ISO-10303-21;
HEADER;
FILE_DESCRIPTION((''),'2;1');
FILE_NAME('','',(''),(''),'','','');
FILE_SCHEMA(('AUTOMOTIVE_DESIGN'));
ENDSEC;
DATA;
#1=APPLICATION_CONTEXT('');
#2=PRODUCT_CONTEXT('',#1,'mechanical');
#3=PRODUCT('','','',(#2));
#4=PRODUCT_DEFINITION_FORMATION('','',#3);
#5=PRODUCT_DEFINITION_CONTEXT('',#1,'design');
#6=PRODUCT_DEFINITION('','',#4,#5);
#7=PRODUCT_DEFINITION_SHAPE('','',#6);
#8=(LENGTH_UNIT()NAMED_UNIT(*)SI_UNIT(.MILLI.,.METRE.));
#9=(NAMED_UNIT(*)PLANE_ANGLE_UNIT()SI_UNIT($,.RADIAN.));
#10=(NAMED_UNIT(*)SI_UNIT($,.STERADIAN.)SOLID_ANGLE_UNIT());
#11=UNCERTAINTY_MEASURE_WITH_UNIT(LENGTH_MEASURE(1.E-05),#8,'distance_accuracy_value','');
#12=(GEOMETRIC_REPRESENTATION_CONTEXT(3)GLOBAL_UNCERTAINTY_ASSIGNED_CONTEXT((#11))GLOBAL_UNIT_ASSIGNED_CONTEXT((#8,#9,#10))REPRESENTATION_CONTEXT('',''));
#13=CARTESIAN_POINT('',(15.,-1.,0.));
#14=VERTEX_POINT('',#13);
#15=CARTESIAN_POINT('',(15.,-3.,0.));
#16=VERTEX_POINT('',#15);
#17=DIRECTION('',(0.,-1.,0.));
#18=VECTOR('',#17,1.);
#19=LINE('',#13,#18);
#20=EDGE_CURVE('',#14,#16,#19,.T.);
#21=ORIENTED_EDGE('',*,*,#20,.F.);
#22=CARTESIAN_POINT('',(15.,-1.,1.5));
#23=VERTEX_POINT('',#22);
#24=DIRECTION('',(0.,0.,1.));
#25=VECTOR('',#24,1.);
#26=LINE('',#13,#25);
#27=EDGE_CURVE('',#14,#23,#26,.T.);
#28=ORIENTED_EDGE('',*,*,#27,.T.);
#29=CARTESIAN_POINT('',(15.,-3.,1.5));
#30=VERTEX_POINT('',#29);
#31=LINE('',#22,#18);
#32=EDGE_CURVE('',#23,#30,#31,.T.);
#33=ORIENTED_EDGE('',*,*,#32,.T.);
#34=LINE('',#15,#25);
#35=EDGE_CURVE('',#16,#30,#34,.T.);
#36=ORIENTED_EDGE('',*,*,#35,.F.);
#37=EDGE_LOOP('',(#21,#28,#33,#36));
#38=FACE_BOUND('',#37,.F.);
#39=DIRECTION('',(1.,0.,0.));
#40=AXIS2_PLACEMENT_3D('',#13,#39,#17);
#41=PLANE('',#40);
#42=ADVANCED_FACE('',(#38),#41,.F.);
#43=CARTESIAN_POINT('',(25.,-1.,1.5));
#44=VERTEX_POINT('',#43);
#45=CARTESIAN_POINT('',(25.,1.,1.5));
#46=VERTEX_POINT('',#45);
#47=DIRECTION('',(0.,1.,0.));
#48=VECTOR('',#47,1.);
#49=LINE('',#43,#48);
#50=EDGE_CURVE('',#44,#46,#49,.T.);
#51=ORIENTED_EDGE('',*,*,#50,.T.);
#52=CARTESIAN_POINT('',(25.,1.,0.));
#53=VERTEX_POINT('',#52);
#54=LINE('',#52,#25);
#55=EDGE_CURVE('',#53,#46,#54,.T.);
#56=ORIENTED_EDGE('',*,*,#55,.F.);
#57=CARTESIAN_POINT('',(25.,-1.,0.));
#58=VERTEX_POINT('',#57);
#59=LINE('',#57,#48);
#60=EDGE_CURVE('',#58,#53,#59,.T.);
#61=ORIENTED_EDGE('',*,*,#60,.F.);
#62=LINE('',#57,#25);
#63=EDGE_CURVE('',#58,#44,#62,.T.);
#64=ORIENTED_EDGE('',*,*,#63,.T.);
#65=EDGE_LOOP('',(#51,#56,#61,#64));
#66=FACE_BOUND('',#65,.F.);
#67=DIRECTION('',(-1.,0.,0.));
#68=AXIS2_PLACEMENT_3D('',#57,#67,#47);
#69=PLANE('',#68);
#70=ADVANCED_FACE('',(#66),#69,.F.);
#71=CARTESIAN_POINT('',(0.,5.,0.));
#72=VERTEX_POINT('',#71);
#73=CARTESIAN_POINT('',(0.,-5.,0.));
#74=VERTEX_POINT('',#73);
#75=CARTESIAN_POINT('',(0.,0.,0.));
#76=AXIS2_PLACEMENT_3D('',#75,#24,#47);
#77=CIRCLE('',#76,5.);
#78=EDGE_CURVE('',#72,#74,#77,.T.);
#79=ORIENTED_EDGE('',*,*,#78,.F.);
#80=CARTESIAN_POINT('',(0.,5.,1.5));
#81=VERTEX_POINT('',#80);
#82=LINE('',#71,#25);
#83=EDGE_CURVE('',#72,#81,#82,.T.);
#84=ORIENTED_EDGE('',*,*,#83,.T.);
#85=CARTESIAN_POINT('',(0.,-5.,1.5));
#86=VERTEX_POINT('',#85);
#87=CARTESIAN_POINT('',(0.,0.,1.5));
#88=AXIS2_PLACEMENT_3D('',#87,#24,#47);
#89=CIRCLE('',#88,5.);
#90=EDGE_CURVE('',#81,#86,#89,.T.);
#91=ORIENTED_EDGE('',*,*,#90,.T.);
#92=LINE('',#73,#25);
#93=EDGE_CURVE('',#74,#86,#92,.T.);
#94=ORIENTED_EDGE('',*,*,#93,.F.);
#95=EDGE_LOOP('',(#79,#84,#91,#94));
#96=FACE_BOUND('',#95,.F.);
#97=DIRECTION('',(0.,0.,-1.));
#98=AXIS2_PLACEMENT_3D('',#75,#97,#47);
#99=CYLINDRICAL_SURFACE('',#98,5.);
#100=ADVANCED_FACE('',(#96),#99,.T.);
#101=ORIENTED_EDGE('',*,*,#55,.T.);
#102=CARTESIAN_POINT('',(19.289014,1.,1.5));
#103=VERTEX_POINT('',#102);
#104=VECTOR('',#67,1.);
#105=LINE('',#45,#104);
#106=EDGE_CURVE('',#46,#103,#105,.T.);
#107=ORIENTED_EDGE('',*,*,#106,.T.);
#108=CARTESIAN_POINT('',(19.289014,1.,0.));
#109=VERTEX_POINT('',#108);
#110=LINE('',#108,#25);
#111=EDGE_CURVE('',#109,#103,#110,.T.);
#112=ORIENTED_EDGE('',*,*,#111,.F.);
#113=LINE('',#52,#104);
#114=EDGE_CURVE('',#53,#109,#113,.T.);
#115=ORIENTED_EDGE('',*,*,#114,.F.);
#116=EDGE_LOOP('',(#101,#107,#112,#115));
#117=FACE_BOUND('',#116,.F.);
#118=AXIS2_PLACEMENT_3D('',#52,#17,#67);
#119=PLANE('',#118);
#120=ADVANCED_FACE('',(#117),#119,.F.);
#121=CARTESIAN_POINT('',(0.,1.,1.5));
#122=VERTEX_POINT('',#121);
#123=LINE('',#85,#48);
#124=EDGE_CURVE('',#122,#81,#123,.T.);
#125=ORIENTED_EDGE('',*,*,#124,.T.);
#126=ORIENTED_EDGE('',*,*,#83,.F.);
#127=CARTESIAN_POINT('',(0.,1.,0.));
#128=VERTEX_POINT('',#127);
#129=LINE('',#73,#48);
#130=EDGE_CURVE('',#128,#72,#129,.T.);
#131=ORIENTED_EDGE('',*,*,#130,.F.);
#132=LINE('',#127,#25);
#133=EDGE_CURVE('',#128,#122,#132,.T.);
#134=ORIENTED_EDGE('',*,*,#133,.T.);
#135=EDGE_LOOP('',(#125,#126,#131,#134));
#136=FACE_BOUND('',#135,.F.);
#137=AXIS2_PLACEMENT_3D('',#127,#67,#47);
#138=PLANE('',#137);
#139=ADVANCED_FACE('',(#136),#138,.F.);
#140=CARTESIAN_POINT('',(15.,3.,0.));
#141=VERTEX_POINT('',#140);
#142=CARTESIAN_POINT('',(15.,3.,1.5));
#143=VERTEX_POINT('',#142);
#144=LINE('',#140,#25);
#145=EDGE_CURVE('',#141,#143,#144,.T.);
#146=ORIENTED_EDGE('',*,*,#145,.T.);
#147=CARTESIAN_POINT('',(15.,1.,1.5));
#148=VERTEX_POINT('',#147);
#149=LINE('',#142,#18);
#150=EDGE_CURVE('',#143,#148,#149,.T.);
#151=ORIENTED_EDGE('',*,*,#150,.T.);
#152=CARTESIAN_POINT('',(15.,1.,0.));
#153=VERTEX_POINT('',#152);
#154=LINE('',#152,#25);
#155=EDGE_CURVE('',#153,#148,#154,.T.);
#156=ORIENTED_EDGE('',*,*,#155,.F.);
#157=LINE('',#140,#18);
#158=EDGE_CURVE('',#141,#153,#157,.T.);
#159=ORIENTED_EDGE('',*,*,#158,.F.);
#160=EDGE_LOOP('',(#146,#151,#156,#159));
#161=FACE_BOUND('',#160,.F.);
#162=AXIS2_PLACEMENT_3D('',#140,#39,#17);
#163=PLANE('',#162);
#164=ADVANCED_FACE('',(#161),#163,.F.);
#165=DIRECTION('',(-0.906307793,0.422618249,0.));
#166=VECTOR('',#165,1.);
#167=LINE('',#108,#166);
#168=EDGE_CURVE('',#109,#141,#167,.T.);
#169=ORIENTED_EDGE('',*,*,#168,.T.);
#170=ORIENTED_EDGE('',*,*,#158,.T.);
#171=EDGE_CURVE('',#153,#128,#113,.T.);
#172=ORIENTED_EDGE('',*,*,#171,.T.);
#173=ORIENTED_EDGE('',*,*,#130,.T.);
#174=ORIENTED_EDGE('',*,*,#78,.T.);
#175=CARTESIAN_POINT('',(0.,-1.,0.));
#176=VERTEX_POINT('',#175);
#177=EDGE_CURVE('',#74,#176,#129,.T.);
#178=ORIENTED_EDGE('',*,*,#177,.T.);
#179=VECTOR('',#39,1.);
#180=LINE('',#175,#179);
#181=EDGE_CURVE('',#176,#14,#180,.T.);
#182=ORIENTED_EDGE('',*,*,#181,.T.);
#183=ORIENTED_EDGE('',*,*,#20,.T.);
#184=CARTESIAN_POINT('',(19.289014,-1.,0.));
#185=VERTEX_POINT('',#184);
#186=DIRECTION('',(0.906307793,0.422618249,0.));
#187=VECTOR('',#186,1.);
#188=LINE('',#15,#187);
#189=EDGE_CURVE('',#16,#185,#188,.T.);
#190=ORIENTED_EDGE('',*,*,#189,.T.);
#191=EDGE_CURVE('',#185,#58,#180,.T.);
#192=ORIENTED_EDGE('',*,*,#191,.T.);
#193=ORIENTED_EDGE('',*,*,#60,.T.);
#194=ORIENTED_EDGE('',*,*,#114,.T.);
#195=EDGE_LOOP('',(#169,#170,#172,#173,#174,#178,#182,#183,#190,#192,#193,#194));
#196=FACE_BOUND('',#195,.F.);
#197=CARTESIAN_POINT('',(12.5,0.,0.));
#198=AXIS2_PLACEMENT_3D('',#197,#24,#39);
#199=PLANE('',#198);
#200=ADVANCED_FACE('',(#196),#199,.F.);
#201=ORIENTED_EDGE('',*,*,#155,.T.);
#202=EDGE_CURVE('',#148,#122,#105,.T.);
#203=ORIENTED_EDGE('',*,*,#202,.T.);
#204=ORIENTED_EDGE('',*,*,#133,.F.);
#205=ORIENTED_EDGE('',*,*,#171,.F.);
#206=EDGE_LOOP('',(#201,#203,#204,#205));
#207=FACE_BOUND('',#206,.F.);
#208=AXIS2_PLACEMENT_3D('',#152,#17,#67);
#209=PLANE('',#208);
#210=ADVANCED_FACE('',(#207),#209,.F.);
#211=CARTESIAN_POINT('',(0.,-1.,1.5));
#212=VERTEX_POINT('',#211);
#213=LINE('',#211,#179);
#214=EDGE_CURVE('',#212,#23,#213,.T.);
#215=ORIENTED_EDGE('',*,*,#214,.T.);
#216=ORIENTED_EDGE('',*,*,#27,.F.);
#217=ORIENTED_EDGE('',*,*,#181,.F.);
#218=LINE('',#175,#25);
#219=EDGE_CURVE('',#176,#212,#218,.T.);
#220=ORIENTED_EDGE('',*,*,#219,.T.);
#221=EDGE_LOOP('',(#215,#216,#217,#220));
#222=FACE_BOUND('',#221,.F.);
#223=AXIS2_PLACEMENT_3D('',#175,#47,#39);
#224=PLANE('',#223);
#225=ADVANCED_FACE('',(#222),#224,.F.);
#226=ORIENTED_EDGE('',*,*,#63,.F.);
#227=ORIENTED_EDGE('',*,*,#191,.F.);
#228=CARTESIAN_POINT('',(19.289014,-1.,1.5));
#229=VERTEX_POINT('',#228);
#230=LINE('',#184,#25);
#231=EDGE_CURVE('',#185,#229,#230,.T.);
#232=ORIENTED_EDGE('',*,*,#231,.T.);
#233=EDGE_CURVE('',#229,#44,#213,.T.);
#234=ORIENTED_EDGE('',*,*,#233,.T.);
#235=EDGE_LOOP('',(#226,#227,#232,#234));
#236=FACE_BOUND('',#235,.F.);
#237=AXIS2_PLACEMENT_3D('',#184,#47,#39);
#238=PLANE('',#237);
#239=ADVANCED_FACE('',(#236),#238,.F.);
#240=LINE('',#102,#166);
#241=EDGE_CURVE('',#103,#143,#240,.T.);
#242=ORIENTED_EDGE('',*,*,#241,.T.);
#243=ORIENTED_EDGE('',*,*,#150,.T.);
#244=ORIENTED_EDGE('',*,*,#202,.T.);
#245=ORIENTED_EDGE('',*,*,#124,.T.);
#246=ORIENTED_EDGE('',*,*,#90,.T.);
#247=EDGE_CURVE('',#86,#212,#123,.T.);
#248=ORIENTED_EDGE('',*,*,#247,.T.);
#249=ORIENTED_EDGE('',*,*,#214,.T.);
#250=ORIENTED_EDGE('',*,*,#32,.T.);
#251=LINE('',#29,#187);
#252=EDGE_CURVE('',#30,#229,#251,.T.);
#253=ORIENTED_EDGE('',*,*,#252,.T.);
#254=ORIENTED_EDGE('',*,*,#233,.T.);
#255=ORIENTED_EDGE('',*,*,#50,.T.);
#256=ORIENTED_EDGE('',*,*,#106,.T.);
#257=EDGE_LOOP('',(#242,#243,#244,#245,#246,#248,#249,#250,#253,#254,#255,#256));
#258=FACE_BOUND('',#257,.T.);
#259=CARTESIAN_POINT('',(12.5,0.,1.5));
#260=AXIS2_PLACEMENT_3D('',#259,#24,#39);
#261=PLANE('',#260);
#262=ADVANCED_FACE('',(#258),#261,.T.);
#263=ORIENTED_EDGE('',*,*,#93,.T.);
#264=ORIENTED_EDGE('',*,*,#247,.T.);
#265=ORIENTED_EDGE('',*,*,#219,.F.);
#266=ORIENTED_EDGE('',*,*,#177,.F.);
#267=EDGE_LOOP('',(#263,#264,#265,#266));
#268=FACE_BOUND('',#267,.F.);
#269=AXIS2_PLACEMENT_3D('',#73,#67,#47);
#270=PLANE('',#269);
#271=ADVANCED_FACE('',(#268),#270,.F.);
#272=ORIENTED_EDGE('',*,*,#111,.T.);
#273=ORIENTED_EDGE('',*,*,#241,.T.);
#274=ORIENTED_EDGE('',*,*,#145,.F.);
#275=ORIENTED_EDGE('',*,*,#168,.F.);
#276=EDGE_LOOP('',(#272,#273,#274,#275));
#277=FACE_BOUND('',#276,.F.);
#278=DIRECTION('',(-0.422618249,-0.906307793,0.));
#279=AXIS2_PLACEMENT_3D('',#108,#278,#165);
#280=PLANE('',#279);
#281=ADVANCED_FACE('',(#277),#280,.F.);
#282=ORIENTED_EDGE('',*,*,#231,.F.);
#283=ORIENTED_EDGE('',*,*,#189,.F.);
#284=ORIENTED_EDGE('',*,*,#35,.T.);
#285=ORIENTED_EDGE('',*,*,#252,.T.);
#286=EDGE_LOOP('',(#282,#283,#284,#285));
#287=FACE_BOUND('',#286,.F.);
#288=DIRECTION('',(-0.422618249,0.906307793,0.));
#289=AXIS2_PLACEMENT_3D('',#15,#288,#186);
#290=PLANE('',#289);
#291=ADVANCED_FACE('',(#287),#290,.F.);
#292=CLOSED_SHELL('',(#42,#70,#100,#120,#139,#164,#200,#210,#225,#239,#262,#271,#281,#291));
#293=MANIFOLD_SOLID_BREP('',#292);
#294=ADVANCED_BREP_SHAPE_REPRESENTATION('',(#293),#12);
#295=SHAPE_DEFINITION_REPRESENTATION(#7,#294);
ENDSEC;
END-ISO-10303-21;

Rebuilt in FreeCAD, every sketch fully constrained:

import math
import FreeCAD as App
import Part
import Sketcher

V = App.Vector
Q = App.Units.Quantity

doc = App.newDocument("Part")
params = doc.addObject("Spreadsheet::Sheet", "Params")
for row, (alias, value) in enumerate([
    ("sketch1_radius", "5 mm"),
    ("sketch1_width", "15 mm"),
    ("sketch1_height", "2 mm"),
    ("pad1_length", "1.5 mm"),
], start=1):
    params.set(f"A{row}", alias)
    params.set(f"B{row}", "=" + value)
    params.setAlias(f"B{row}", alias)

body = doc.addObject("PartDesign::Body", "Body")

sketch1 = body.newObject("Sketcher::SketchObject", "Sketch")
sketch1.AttachmentSupport = (doc.getObject("XY_Plane"), [""])
sketch1.MapMode = "FlatFace"
sketch1.addGeometry([
    Part.LineSegment(V(0, -1, 0), V(15, -1, 0)),
    Part.LineSegment(V(15, -1, 0), V(15, -3, 0)),
    Part.LineSegment(V(15, -3, 0), V(19.3, -1, 0)),
    Part.LineSegment(V(19.3, -1, 0), V(25, -1, 0)),
    Part.LineSegment(V(25, -1, 0), V(25, 1, 0)),
    Part.LineSegment(V(25, 1, 0), V(19.3, 1, 0)),
    Part.LineSegment(V(19.3, 1, 0), V(15, 3, 0)),
    Part.LineSegment(V(15, 3, 0), V(15, 1, 0)),
    Part.LineSegment(V(15, 1, 0), V(0, 1, 0)),
    Part.LineSegment(V(0, 1, 0), V(0, 5, 0)),
    Part.ArcOfCircle(Part.Circle(V(0, 0, 0), V(0, 0, 1), 5), math.radians(90), math.radians(270)),
    Part.LineSegment(V(0, -5, 0), V(0, -1, 0)),
], False)
sketch1.addConstraint([
    Sketcher.Constraint("Coincident", 0, 2, 1, 1),
    Sketcher.Constraint("Coincident", 1, 2, 2, 1),
    Sketcher.Constraint("Coincident", 2, 2, 3, 1),
    Sketcher.Constraint("Coincident", 3, 2, 4, 1),
    Sketcher.Constraint("Coincident", 4, 2, 5, 1),
    Sketcher.Constraint("Coincident", 5, 2, 6, 1),
    Sketcher.Constraint("Coincident", 6, 2, 7, 1),
    Sketcher.Constraint("Coincident", 7, 2, 8, 1),
    Sketcher.Constraint("Coincident", 8, 2, 9, 1),
    Sketcher.Constraint("Coincident", 9, 2, 10, 1),
    Sketcher.Constraint("Coincident", 10, 2, 11, 1),
    Sketcher.Constraint("Coincident", 11, 2, 0, 1),
    Sketcher.Constraint("Horizontal", 0),
    Sketcher.Constraint("Vertical", 1),
    Sketcher.Constraint("Horizontal", 3),
    Sketcher.Constraint("Vertical", 4),
    Sketcher.Constraint("Horizontal", 5),
    Sketcher.Constraint("Vertical", 7),
    Sketcher.Constraint("Horizontal", 8),
    Sketcher.Constraint("Vertical", 9),
    Sketcher.Constraint("Vertical", 11),
    Sketcher.Constraint("Coincident", 10, 3, -1, 1),
    Sketcher.Constraint("Symmetric", 8, 2, 11, 2, -1, 1),
    Sketcher.Constraint("Symmetric", 2, 2, 5, 2, -1),
    Sketcher.Constraint("Symmetric", 1, 2, 6, 2, -1),
    Sketcher.Constraint("PointOnObject", 8, 2, -2),
    Sketcher.Constraint("Horizontal", 0, 2, 2, 2),
    Sketcher.Constraint("Equal", 1, 4),
    Sketcher.Constraint("Radius", 10, 5.0),
    Sketcher.Constraint("DistanceX", 0, 1, 0, 2, 15.0),
    Sketcher.Constraint("DistanceY", 1, 2, 1, 1, 2.0),
    Sketcher.Constraint("Angle", 2, Q("24.999999 deg")),
    Sketcher.Constraint("DistanceX", -1, 1, 3, 2, 25.0),
])
sketch1.setExpression("Constraints[28]", "Params.sketch1_radius")
sketch1.setExpression("Constraints[29]", "Params.sketch1_width")
sketch1.setExpression("Constraints[30]", "Params.sketch1_height")
pad1 = body.newObject("PartDesign::Pad", "Pad")
pad1.Profile = sketch1
pad1.setExpression("Length", "Params.pad1_length")

doc.recompute()
